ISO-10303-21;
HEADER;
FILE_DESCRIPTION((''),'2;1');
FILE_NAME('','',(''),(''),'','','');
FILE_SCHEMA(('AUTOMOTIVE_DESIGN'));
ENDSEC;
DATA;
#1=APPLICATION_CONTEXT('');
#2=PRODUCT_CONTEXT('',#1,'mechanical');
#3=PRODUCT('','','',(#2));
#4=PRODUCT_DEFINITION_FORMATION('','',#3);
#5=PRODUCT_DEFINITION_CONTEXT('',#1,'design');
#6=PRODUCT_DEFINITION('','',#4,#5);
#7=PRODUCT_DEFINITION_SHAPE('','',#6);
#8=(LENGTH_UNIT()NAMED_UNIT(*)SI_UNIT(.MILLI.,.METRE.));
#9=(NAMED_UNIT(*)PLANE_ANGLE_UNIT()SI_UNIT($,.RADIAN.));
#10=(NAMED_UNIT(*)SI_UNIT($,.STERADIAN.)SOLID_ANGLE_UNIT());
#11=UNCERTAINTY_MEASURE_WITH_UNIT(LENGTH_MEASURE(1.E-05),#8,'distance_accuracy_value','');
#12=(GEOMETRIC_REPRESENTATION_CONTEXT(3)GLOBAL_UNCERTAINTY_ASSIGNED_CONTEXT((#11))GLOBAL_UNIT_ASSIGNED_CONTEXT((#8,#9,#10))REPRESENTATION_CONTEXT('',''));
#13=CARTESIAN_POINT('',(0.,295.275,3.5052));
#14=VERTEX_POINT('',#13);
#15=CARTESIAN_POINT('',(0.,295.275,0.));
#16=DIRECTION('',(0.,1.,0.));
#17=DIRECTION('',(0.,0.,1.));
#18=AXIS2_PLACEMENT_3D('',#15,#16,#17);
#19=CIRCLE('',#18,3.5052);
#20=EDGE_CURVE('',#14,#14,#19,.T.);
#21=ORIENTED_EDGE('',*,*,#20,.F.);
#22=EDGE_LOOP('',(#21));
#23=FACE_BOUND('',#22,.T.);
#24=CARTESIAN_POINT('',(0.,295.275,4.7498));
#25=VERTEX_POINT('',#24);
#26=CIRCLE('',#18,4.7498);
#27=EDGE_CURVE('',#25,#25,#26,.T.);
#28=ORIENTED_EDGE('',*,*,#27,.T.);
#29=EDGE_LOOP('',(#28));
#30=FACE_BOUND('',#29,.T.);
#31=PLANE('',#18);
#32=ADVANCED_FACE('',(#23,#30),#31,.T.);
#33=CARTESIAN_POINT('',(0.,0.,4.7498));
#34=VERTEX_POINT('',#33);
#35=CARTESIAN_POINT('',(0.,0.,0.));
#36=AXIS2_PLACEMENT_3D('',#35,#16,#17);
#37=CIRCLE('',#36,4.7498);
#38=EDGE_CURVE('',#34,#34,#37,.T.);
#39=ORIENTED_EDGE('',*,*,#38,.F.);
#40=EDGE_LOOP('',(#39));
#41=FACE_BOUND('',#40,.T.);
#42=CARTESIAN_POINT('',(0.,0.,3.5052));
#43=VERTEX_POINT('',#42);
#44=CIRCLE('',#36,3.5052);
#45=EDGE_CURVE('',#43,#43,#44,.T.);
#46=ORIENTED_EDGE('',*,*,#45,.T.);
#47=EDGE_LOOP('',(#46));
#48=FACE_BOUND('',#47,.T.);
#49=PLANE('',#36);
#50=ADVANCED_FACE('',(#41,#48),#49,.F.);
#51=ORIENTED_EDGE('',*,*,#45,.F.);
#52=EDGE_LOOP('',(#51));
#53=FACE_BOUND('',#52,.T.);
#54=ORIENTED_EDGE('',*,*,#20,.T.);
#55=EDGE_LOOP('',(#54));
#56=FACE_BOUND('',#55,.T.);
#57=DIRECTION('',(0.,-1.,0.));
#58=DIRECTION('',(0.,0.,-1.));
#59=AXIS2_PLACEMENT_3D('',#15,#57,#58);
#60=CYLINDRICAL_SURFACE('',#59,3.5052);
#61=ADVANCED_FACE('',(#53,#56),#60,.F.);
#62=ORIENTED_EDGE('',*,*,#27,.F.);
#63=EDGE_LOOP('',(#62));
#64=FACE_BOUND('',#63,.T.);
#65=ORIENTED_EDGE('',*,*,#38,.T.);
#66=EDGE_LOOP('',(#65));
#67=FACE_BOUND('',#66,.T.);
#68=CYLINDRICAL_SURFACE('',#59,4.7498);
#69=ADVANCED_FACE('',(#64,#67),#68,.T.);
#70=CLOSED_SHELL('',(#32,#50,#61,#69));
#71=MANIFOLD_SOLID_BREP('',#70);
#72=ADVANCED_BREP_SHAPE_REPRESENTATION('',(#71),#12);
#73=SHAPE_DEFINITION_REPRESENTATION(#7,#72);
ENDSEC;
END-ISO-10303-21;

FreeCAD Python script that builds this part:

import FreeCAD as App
import Part
import Sketcher

V = App.Vector
Q = App.Units.Quantity

doc = App.newDocument("Part")
body = doc.addObject("PartDesign::Body", "Body")

# Sketch on XZ plane
sketch1 = body.newObject("Sketcher::SketchObject", "Sketch")
sketch1.AttachmentSupport = (doc.getObject("XZ_Plane"), [""])
sketch1.MapMode = "FlatFace"
sketch1.addGeometry([
    Part.Circle(V(0, 0, 0), V(0, 0, 1), 4.7498),
    Part.Circle(V(0, 0, 0), V(0, 0, 1), 3.5052),
], False)
sketch1.addConstraint([
    Sketcher.Constraint("Coincident", 0, 3, -1, 1),
    Sketcher.Constraint("Coincident", 1, 3, -1, 1),
    Sketcher.Constraint("Diameter", 0, Q("0.374 in")),
    Sketcher.Constraint("Diameter", 1, Q("0.276 in")),
])
pad1 = body.newObject("PartDesign::Pad", "Pad")
pad1.Profile = sketch1
pad1.Length = Q("11.625 in")
pad1.Reversed = True

doc.recompute()
